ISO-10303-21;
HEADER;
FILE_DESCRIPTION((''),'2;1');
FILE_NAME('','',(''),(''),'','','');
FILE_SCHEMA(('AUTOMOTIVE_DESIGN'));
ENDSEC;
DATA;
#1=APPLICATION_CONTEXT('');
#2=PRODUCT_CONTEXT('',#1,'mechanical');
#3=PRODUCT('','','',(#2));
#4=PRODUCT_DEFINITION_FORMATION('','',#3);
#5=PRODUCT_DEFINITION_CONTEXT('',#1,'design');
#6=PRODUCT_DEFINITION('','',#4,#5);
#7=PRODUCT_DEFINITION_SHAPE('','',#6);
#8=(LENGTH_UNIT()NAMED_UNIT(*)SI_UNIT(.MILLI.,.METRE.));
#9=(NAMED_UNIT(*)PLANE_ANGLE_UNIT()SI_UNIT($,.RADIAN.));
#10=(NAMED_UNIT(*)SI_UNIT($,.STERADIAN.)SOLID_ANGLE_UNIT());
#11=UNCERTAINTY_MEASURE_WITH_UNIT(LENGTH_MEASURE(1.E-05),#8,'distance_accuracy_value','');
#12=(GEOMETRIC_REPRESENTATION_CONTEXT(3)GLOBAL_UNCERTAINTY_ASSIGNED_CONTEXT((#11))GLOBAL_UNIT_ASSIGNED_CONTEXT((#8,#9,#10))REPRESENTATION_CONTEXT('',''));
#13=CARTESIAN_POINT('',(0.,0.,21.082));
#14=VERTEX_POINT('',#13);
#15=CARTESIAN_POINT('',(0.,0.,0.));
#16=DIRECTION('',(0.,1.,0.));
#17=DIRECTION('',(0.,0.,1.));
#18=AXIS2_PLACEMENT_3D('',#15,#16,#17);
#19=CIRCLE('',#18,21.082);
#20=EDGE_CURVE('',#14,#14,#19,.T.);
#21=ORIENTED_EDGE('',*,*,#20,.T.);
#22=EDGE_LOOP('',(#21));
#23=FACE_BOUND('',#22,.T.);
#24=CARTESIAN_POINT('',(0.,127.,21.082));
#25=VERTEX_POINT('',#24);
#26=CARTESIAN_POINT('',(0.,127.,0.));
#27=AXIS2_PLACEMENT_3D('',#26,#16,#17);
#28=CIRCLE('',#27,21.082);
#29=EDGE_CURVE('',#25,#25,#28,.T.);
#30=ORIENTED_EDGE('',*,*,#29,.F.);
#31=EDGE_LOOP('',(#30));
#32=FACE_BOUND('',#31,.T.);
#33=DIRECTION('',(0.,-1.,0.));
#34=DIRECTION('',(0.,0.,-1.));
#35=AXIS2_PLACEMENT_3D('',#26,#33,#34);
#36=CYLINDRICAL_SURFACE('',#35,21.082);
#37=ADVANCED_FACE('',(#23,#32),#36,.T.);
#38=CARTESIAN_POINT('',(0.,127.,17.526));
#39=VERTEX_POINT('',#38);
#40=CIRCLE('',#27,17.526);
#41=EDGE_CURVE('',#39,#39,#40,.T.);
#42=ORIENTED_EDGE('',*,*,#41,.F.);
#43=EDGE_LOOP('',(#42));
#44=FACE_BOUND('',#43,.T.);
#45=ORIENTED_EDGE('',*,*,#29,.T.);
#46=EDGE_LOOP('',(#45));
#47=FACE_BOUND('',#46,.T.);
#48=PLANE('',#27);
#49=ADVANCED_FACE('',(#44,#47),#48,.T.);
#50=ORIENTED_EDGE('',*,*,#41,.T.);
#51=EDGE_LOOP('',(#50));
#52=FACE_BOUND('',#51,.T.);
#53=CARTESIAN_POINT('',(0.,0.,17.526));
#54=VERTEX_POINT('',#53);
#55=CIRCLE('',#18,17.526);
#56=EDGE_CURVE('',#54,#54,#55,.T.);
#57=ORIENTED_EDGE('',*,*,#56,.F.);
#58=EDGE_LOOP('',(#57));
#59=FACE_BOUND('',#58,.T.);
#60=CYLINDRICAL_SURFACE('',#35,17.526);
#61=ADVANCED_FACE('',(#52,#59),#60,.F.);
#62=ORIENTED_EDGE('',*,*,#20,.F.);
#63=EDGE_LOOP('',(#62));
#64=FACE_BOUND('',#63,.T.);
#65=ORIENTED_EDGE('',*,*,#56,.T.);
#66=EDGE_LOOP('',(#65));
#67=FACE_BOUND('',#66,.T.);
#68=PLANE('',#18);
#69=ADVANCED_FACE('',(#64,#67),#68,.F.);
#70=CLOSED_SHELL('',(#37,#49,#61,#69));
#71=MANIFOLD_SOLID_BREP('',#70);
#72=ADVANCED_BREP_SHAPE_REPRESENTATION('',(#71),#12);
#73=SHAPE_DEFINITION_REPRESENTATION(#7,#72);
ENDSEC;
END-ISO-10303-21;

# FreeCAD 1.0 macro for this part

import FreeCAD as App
import Part
import Sketcher

V = App.Vector
Q = App.Units.Quantity

doc = App.newDocument("Part")
body = doc.addObject("PartDesign::Body", "Body")

sketch1 = body.newObject("Sketcher::SketchObject", "Sketch")
sketch1.AttachmentSupport = (doc.getObject("XZ_Plane"), [""])
sketch1.MapMode = "FlatFace"
sketch1.addGeometry(Part.Circle(V(0, 0, 0), V(0, 0, 1), 21), False)
sketch1.addGeometry(Part.Circle(V(0, 0, 0), V(0, 0, 1), 18), False)
sketch1.addConstraint(Sketcher.Constraint("Coincident", 0, 3, -1, 1))
sketch1.addConstraint(Sketcher.Constraint("Coincident", 1, 3, -1, 1))
sketch1.addConstraint(Sketcher.Constraint("Diameter", 0, Q("1.66 in")))
sketch1.addConstraint(Sketcher.Constraint("Diameter", 1, Q("1.38 in")))
pad1 = body.newObject("PartDesign::Pad", "Pad")
pad1.Profile = sketch1
pad1.Length = Q("5 in")
pad1.Reversed = True

doc.recompute()
